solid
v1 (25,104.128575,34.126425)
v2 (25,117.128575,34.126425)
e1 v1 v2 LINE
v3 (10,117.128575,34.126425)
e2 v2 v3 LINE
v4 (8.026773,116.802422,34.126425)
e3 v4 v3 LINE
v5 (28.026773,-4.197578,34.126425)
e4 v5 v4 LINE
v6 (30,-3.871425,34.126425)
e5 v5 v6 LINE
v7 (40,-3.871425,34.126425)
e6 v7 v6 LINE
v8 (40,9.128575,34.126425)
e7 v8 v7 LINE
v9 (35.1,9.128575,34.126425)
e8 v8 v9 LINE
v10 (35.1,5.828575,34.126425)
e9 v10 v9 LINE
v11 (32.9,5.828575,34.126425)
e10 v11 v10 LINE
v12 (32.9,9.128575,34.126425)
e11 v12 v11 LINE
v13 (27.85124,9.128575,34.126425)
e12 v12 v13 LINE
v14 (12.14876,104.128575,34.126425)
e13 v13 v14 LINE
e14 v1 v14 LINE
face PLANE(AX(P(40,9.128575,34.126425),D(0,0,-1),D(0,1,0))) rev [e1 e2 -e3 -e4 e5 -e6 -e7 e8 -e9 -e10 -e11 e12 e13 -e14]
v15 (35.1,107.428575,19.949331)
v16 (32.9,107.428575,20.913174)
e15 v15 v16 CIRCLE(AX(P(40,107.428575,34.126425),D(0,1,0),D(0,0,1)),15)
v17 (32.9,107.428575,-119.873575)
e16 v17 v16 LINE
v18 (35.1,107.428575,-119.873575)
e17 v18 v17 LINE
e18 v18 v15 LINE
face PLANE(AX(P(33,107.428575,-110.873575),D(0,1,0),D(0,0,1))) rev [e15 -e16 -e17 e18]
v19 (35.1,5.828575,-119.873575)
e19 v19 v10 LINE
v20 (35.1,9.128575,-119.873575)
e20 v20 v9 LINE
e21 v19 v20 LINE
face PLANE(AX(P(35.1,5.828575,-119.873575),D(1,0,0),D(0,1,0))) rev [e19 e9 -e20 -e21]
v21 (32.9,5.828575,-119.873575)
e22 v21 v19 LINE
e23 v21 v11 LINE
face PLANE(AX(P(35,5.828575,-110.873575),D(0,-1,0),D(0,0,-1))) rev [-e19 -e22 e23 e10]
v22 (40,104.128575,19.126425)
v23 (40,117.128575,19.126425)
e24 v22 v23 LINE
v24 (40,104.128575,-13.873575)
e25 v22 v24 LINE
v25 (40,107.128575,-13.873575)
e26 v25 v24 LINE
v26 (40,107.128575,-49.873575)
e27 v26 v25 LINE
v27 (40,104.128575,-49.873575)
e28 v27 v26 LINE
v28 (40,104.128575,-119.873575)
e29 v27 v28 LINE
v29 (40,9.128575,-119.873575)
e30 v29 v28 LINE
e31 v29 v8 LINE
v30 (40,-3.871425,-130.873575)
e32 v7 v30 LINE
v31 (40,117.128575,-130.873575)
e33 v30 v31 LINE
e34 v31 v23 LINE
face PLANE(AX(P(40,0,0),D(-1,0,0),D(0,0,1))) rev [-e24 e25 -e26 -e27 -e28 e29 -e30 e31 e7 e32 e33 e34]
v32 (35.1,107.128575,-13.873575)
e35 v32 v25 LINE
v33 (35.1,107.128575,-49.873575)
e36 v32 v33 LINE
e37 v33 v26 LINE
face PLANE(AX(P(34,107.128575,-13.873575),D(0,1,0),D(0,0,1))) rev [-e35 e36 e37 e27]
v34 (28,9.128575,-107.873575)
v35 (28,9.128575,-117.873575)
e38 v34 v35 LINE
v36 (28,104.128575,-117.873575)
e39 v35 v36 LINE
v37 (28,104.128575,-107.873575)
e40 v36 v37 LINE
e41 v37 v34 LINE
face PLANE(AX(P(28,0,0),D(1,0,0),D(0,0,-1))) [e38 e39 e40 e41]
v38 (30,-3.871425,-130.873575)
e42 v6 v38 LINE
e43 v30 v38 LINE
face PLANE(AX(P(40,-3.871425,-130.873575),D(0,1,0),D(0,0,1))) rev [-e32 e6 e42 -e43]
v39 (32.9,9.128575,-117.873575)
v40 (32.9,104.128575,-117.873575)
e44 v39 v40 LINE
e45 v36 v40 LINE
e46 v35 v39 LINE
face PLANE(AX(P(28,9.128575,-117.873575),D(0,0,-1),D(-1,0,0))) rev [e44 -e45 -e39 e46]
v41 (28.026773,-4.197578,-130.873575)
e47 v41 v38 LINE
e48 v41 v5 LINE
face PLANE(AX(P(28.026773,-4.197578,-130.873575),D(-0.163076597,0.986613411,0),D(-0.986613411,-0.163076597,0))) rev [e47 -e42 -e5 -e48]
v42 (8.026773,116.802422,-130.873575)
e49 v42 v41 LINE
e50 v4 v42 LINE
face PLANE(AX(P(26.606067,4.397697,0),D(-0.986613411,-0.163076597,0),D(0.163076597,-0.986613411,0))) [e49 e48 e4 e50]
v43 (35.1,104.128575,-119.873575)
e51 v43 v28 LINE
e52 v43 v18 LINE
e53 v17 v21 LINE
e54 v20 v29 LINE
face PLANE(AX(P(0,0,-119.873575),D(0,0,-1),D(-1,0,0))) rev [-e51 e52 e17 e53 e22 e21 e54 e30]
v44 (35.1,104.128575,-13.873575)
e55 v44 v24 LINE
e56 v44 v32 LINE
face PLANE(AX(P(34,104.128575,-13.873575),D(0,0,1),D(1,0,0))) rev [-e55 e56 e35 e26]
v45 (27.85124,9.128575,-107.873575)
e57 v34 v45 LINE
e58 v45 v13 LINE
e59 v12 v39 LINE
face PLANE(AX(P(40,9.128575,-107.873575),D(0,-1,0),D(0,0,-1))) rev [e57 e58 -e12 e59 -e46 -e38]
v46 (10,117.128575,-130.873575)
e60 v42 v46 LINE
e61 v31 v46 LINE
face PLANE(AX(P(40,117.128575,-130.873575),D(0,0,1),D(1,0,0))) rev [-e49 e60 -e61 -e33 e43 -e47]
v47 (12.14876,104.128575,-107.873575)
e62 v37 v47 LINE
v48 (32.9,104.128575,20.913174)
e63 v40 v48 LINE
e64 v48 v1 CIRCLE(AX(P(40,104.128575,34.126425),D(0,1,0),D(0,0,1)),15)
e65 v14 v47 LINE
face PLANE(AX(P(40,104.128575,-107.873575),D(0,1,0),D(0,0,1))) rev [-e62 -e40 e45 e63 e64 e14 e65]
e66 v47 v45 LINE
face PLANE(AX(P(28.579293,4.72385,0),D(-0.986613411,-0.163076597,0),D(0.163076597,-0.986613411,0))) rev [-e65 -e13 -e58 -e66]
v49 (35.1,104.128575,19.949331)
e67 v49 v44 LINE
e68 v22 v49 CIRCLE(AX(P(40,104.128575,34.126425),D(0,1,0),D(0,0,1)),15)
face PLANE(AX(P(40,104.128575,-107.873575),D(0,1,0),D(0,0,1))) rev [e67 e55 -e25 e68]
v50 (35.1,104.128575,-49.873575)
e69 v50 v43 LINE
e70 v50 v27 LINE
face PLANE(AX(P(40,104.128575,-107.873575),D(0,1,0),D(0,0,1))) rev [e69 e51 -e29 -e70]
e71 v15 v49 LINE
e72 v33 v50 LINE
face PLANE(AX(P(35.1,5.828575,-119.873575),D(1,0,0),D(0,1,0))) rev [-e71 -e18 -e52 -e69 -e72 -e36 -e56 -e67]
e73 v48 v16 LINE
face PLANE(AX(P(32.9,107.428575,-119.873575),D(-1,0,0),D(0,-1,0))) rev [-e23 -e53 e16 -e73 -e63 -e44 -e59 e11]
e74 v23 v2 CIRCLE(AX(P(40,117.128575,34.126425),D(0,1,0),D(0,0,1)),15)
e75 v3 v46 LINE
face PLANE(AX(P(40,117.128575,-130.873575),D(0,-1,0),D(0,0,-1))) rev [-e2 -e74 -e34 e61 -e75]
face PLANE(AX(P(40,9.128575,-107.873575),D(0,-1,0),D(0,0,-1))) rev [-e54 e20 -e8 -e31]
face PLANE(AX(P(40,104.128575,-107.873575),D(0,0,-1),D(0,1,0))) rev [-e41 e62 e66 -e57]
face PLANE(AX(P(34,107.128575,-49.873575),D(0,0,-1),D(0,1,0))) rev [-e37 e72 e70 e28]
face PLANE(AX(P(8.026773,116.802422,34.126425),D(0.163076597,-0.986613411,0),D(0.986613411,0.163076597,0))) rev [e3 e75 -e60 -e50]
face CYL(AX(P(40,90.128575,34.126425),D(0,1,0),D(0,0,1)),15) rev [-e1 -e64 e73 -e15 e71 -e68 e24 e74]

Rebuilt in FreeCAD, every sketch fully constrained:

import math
import FreeCAD as App
import Part
import Sketcher

V = App.Vector
Q = App.Units.Quantity


def add_polygon(sketch, points):
    """Adds a closed chain of lines whose ends are joined by coincident constraints."""
    first, n = sketch.GeometryCount, len(points)
    for a, b in zip(points, points[1:] + points[:1]):
        sketch.addGeometry(Part.LineSegment(App.Vector(*a, 0), App.Vector(*b, 0)), False)
    for i in range(n):
        sketch.addConstraint(Sketcher.Constraint("Coincident", first + i, 2, first + (i + 1) % n, 1))

doc = App.newDocument("Part")
body = doc.addObject("PartDesign::Body", "Body")

sketch1 = body.newObject("Sketcher::SketchObject", "Sketch")
sketch1.AttachmentSupport = (doc.getObject("YZ_Plane"), [""])
sketch1.MapMode = "FlatFace"
add_polygon(sketch1, [(9.128575, 34.126425), (-3.871425, 34.126425), (-3.871425, -130.873575), (117.128575, -130.873575), (117.128575, 34.126425), (104.128575, 34.126425), (104.128575, -107.873575), (9.128575, -107.873575)])
sketch1.addConstraint([
    Sketcher.Constraint("Horizontal", 0),
    Sketcher.Constraint("Vertical", 1),
    Sketcher.Constraint("Horizontal", 2),
    Sketcher.Constraint("Vertical", 3),
    Sketcher.Constraint("Horizontal", 4),
    Sketcher.Constraint("Vertical", 5),
    Sketcher.Constraint("Horizontal", 6),
    Sketcher.Constraint("Vertical", 7),
    Sketcher.Constraint("Horizontal", 0, 2, 3, 2),
    Sketcher.Constraint("Equal", 0, 4),
    Sketcher.Constraint("DistanceX", 0, 2, 0, 1, Q("13 mm")),
    Sketcher.Constraint("DistanceX", 2, 1, 2, 2, Q("121 mm")),
    Sketcher.Constraint("DistanceY", 1, 2, 1, 1, Q("165 mm")),
    Sketcher.Constraint("DistanceY", 5, 2, 5, 1, Q("142 mm")),
    Sketcher.Constraint("DistanceX", 0, 2, -1, 1, Q("3.871425 mm")),
    Sketcher.Constraint("DistanceY", -1, 1, 0, 2, Q("34.126425 mm")),
])
pad1 = body.newObject("PartDesign::Pad", "Pad")
pad1.Profile = sketch1
pad1.Length = 40

sketch2 = body.newObject("Sketcher::SketchObject", "Sketch001")
sketch2.AttachmentSupport = (doc.getObject("XZ_Plane"), [""])
sketch2.MapMode = "FlatFace"
sketch2.AttachmentOffset = App.Placement(V(0, 0, -104.128575), App.Rotation())
add_polygon(sketch2, [(33, 34.126425), (33, -107.873575), (35, -107.873575), (35, 34.126425)])
sketch2.addConstraint([
    Sketcher.Constraint("Vertical", 0),
    Sketcher.Constraint("Horizontal", 1),
    Sketcher.Constraint("Vertical", 2),
    Sketcher.Constraint("Horizontal", 3),
    Sketcher.Constraint("DistanceX", 1, 1, 1, 2, Q("2 mm")),
    Sketcher.Constraint("DistanceY", 0, 2, 0, 1, Q("142 mm")),
    Sketcher.Constraint("DistanceX", -1, 1, 0, 2, Q("33 mm")),
    Sketcher.Constraint("DistanceY", 0, 2, -1, 1, Q("107.873575 mm")),
])
pocket1 = body.newObject("PartDesign::Pocket", "Pocket")
pocket1.Profile = sketch2
pocket1.Length = 3

sketch3 = body.newObject("Sketcher::SketchObject", "Sketch002")
sketch3.AttachmentSupport = (doc.getObject("XY_Plane"), [""])
sketch3.MapMode = "FlatFace"
sketch3.AttachmentOffset = App.Placement(V(0, 0, -107.873575), App.Rotation())
add_polygon(sketch3, [(33, 107.128575), (33, 9.128575), (35, 9.128575), (35, 107.128575)])
sketch3.addConstraint([
    Sketcher.Constraint("Vertical", 0),
    Sketcher.Constraint("Horizontal", 1),
    Sketcher.Constraint("Vertical", 2),
    Sketcher.Constraint("Horizontal", 3),
    Sketcher.Constraint("DistanceX", 1, 1, 1, 2, Q("2 mm")),
    Sketcher.Constraint("DistanceY", 0, 2, 0, 1, Q("98 mm")),
    Sketcher.Constraint("DistanceX", -1, 1, 0, 2, Q("33 mm")),
    Sketcher.Constraint("DistanceY", -1, 1, 0, 2, Q("9.128575 mm")),
])
pocket2 = body.newObject("PartDesign::Pocket", "Pocket001")
pocket2.Profile = sketch3
pocket2.Length = 3

sketch4 = body.newObject("Sketcher::SketchObject", "Sketch003")
sketch4.AttachmentSupport = (doc.getObject("XZ_Plane"), [""])
sketch4.MapMode = "FlatFace"
sketch4.AttachmentOffset = App.Placement(V(0, 0, -9.128575), App.Rotation())
add_polygon(sketch4, [(33, -110.873575), (33, 34.126425), (35, 34.126425), (35, -110.873575)])
sketch4.addConstraint([
    Sketcher.Constraint("Vertical", 0),
    Sketcher.Constraint("Horizontal", 1),
    Sketcher.Constraint("Vertical", 2),
    Sketcher.Constraint("Horizontal", 3),
    Sketcher.Constraint("DistanceX", 1, 1, 1, 2, Q("2 mm")),
    Sketcher.Constraint("DistanceY", 0, 1, 0, 2, Q("145 mm")),
    Sketcher.Constraint("DistanceX", -1, 1, 0, 2, Q("33 mm")),
    Sketcher.Constraint("DistanceY", -1, 1, 0, 2, Q("34.126425 mm")),
])
pocket3 = body.newObject("PartDesign::Pocket", "Pocket002")
pocket3.Profile = sketch4
pocket3.Length = 3
pocket3.Reversed = True

sketch5 = body.newObject("Sketcher::SketchObject", "Sketch004")
sketch5.AttachmentSupport = (doc.getObject("XY_Plane"), [""])
sketch5.MapMode = "FlatFace"
sketch5.AttachmentOffset = App.Placement(V(0, 0, -130.873575), App.Rotation())
add_polygon(sketch5, [(0, -3.871425), (0, 117.128575), (10, 117.128575), (30, -3.871425)])
sketch5.addConstraint([
    Sketcher.Constraint("Vertical", 0),
    Sketcher.Constraint("Horizontal", 1),
    Sketcher.Constraint("Horizontal", 3),
    Sketcher.Constraint("PointOnObject", 0, 2, -2),
    Sketcher.Constraint("DistanceX", 1, 1, 1, 2, Q("10 mm")),
    Sketcher.Constraint("DistanceX", 3, 2, 3, 1, Q("30 mm")),
    Sketcher.Constraint("DistanceY", 0, 1, 0, 2, Q("121 mm")),
    Sketcher.Constraint("DistanceY", -1, 1, 0, 2, Q("117.128575 mm")),
])
pocket4 = body.newObject("PartDesign::Pocket", "Pocket003")
pocket4.Profile = sketch5
pocket4.Length = 228
pocket4.Reversed = True

sketch6 = body.newObject("Sketcher::SketchObject", "Sketch005")
sketch6.Placement = App.Placement(V(28.579293, 4.72385, 0), App.Rotation(V(0, 0, 1), V(-0.163076597, 0.986613411, 0), V(-0.986613411, -0.163076597, 0), "ZXY"))
add_polygon(sketch6, [(-130.873575, 113.929857), (-130.873575, -8.711898), (34.126425, -8.711898), (34.126425, 113.929857)])
sketch6.addConstraint([
    Sketcher.Constraint("Vertical", 0),
    Sketcher.Constraint("Horizontal", 1),
    Sketcher.Constraint("Vertical", 2),
    Sketcher.Constraint("Horizontal", 3),
    Sketcher.Constraint("DistanceX", 1, 1, 1, 2, Q("165 mm")),
    Sketcher.Constraint("DistanceY", 0, 2, 0, 1, Q("122.641755 mm")),
    Sketcher.Constraint("DistanceX", 0, 2, -1, 1, Q("130.873575 mm")),
    Sketcher.Constraint("DistanceY", 0, 2, -1, 1, Q("8.711898 mm")),
])
pad2 = body.newObject("PartDesign::Pad", "Pad001")
pad2.Profile = sketch6
pad2.Length = 2

sketch7 = body.newObject("Sketcher::SketchObject", "Sketch006")
sketch7.AttachmentSupport = (doc.getObject("XY_Plane"), [""])
sketch7.MapMode = "FlatFace"
sketch7.AttachmentOffset = App.Placement(V(0, 0, 34.126425), App.Rotation())
add_polygon(sketch7, [(33, 107.428575), (33, 107.128575), (35, 107.128575), (35, 107.428575)])
sketch7.addConstraint([
    Sketcher.Constraint("Vertical", 0),
    Sketcher.Constraint("Horizontal", 1),
    Sketcher.Constraint("Vertical", 2),
    Sketcher.Constraint("Horizontal", 3),
    Sketcher.Constraint("DistanceX", 1, 1, 1, 2, Q("2 mm")),
    Sketcher.Constraint("DistanceY", 0, 2, 0, 1, Q("0.3 mm")),
    Sketcher.Constraint("DistanceX", -1, 1, 0, 2, Q("33 mm")),
    Sketcher.Constraint("DistanceY", -1, 1, 0, 2, Q("107.128575 mm")),
])
pocket5 = body.newObject("PartDesign::Pocket", "Pocket004")
pocket5.Profile = sketch7
pocket5.Length = 145

sketch8 = body.newObject("Sketcher::SketchObject", "Sketch007")
sketch8.AttachmentSupport = (doc.getObject("XY_Plane"), [""])
sketch8.MapMode = "FlatFace"
sketch8.AttachmentOffset = App.Placement(V(0, 0, 34.126425), App.Rotation())
add_polygon(sketch8, [(33, 6.128575), (33, 5.828575), (35, 5.828575), (35, 6.128575)])
sketch8.addConstraint([
    Sketcher.Constraint("Vertical", 0),
    Sketcher.Constraint("Horizontal", 1),
    Sketcher.Constraint("Vertical", 2),
    Sketcher.Constraint("Horizontal", 3),
    Sketcher.Constraint("DistanceX", 1, 1, 1, 2, Q("2 mm")),
    Sketcher.Constraint("DistanceY", 0, 2, 0, 1, Q("0.3 mm")),
    Sketcher.Constraint("DistanceX", -1, 1, 0, 2, Q("33 mm")),
    Sketcher.Constraint("DistanceY", -1, 1, 0, 2, Q("5.828575 mm")),
])
pocket6 = body.newObject("PartDesign::Pocket", "Pocket005")
pocket6.Profile = sketch8
pocket6.Length = 145

sketch9 = body.newObject("Sketcher::SketchObject", "Sketch008")
sketch9.AttachmentSupport = (doc.getObject("XY_Plane"), [""])
sketch9.MapMode = "FlatFace"
sketch9.AttachmentOffset = App.Placement(V(0, 0, 34.126425), App.Rotation())
add_polygon(sketch9, [(33, 107.428575), (33, 5.828575), (35, 5.828575), (35, 107.428575)])
sketch9.addConstraint([
    Sketcher.Constraint("Vertical", 0),
    Sketcher.Constraint("Horizontal", 1),
    Sketcher.Constraint("Vertical", 2),
    Sketcher.Constraint("Horizontal", 3),
    Sketcher.Constraint("DistanceX", 1, 1, 1, 2, Q("2 mm")),
    Sketcher.Constraint("DistanceY", 0, 2, 0, 1, Q("101.6 mm")),
    Sketcher.Constraint("DistanceX", -1, 1, 0, 2, Q("33 mm")),
    Sketcher.Constraint("DistanceY", -1, 1, 0, 2, Q("5.828575 mm")),
])
pocket7 = body.newObject("PartDesign::Pocket", "Pocket006")
pocket7.Profile = sketch9
pocket7.Length = 154

sketch10 = body.newObject("Sketcher::SketchObject", "Sketch009")
sketch10.AttachmentSupport = (doc.getObject("YZ_Plane"), [""])
sketch10.MapMode = "FlatFace"
sketch10.AttachmentOffset = App.Placement(V(0, 0, 40), App.Rotation())
add_polygon(sketch10, [(104.128575, -107.873575), (9.128575, -107.873575), (9.128575, -117.873575), (104.128575, -117.873575)])
sketch10.addConstraint([
    Sketcher.Constraint("Horizontal", 0),
    Sketcher.Constraint("Vertical", 1),
    Sketcher.Constraint("Horizontal", 2),
    Sketcher.Constraint("Vertical", 3),
    Sketcher.Constraint("DistanceX", 0, 2, 0, 1, Q("95 mm")),
    Sketcher.Constraint("DistanceY", 1, 2, 1, 1, Q("10 mm")),
    Sketcher.Constraint("DistanceX", -1, 1, 0, 2, Q("9.128575 mm")),
    Sketcher.Constraint("DistanceY", 0, 2, -1, 1, Q("107.873575 mm")),
])
pocket8 = body.newObject("PartDesign::Pocket", "Pocket007")
pocket8.Profile = sketch10
pocket8.Length = 12

sketch11 = body.newObject("Sketcher::SketchObject", "Sketch010")
sketch11.AttachmentSupport = (doc.getObject("XZ_Plane"), [""])
sketch11.MapMode = "FlatFace"
sketch11.AttachmentOffset = App.Placement(V(0, 0, -104.128575), App.Rotation())
add_polygon(sketch11, [(28, 34.126425), (28, 29.126425), (33, 29.126425), (33, 34.126425)])
sketch11.addConstraint([
    Sketcher.Constraint("Vertical", 0),
    Sketcher.Constraint("Horizontal", 1),
    Sketcher.Constraint("Vertical", 2),
    Sketcher.Constraint("Horizontal", 3),
    Sketcher.Constraint("Equal", 3, 0),
    Sketcher.Constraint("DistanceX", 1, 1, 1, 2, Q("5 mm")),
    Sketcher.Constraint("DistanceX", -1, 1, 0, 2, Q("28 mm")),
    Sketcher.Constraint("DistanceY", -1, 1, 0, 2, Q("29.126425 mm")),
])
pocket9 = body.newObject("PartDesign::Pocket", "Pocket008")
pocket9.Profile = sketch11
pocket9.Length = 56

sketch12 = body.newObject("Sketcher::SketchObject", "Sketch011")
sketch12.AttachmentSupport = (doc.getObject("YZ_Plane"), [""])
sketch12.MapMode = "FlatFace"
sketch12.AttachmentOffset = App.Placement(V(0, 0, 40), App.Rotation())
add_polygon(sketch12, [(107.128575, -13.873575), (104.128575, -13.873575), (104.128575, -49.873575), (107.128575, -49.873575)])
sketch12.addConstraint([
    Sketcher.Constraint("Horizontal", 0),
    Sketcher.Constraint("Vertical", 1),
    Sketcher.Constraint("Horizontal", 2),
    Sketcher.Constraint("Vertical", 3),
    Sketcher.Constraint("DistanceX", 0, 2, 0, 1, Q("3 mm")),
    Sketcher.Constraint("DistanceY", 1, 2, 1, 1, Q("36 mm")),
    Sketcher.Constraint("DistanceX", -1, 1, 0, 2, Q("104.128575 mm")),
    Sketcher.Constraint("DistanceY", 0, 2, -1, 1, Q("13.873575 mm")),
])
pocket10 = body.newObject("PartDesign::Pocket", "Pocket009")
pocket10.Profile = sketch12
pocket10.Length = 6

sketch13 = body.newObject("Sketcher::SketchObject", "Sketch012")
sketch13.AttachmentSupport = (doc.getObject("XZ_Plane"), [""])
sketch13.MapMode = "FlatFace"
sketch13.AttachmentOffset = App.Placement(V(0, 0, -117.128575), App.Rotation())
sketch13.addGeometry([
    Part.LineSegment(V(33, 34.126425, 0), V(40, 34.126425, 0)),
    Part.LineSegment(V(40, 34.126425, 0), V(40, 19.126425, 0)),
    Part.ArcOfCircle(Part.Circle(V(40, 34.126425, 0), V(0, 0, 1), 15), math.radians(180), math.radians(270)),
    Part.LineSegment(V(25, 34.126425, 0), V(28, 34.126425, 0)),
    Part.LineSegment(V(28, 34.126425, 0), V(28, 29.126425, 0)),
    Part.LineSegment(V(28, 29.126425, 0), V(33, 29.126425, 0)),
    Part.LineSegment(V(33, 29.126425, 0), V(33, 34.126425, 0)),
], False)
sketch13.addConstraint([
    Sketcher.Constraint("Coincident", 0, 2, 1, 1),
    Sketcher.Constraint("Coincident", 1, 2, 2, 2),
    Sketcher.Constraint("Coincident", 2, 1, 3, 1),
    Sketcher.Constraint("Coincident", 3, 2, 4, 1),
    Sketcher.Constraint("Coincident", 4, 2, 5, 1),
    Sketcher.Constraint("Coincident", 5, 2, 6, 1),
    Sketcher.Constraint("Coincident", 6, 2, 0, 1),
    Sketcher.Constraint("Horizontal", 0),
    Sketcher.Constraint("Vertical", 1),
    Sketcher.Constraint("Horizontal", 3),
    Sketcher.Constraint("Vertical", 4),
    Sketcher.Constraint("Horizontal", 5),
    Sketcher.Constraint("Vertical", 6),
    Sketcher.Constraint("Coincident", 0, 2, 2, 3),
    Sketcher.Constraint("Horizontal", 0, 2, 2, 1),
    Sketcher.Constraint("Equal", 5, 4),
    Sketcher.Constraint("Radius", 2, Q("15 mm")),
    Sketcher.Constraint("DistanceX", 0, 1, 0, 2, Q("7 mm")),
    Sketcher.Constraint("DistanceX", 3, 1, 3, 2, Q("3 mm")),
    Sketcher.Constraint("DistanceX", -1, 1, 2, 3, Q("40 mm")),
    Sketcher.Constraint("DistanceY", -1, 1, 2, 3, Q("34.126425 mm")),
])
pocket11 = body.newObject("PartDesign::Pocket", "Pocket010")
pocket11.Profile = sketch13
pocket11.Length = 27
pocket11.Reversed = True

sketch14 = body.newObject("Sketcher::SketchObject", "Sketch013")
sketch14.AttachmentSupport = (doc.getObject("YZ_Plane"), [""])
sketch14.MapMode = "FlatFace"
sketch14.AttachmentOffset = App.Placement(V(0, 0, 40), App.Rotation())
add_polygon(sketch14, [(104.128575, -117.873575), (9.128575, -117.873575), (9.128575, -119.873575), (104.128575, -119.873575)])
sketch14.addConstraint([
    Sketcher.Constraint("Horizontal", 0),
    Sketcher.Constraint("Vertical", 1),
    Sketcher.Constraint("Horizontal", 2),
    Sketcher.Constraint("Vertical", 3),
    Sketcher.Constraint("DistanceX", 0, 2, 0, 1, Q("95 mm")),
    Sketcher.Constraint("DistanceY", 1, 2, 1, 1, Q("2 mm")),
    Sketcher.Constraint("DistanceX", -1, 1, 0, 2, Q("9.128575 mm")),
    Sketcher.Constraint("DistanceY", 0, 2, -1, 1, Q("117.873575 mm")),
])
pocket12 = body.newObject("PartDesign::Pocket", "Pocket011")
pocket12.Profile = sketch14
pocket12.Length = 5

sketch15 = body.newObject("Sketcher::SketchObject", "Sketch014")
sketch15.AttachmentSupport = (doc.getObject("XY_Plane"), [""])
sketch15.MapMode = "FlatFace"
sketch15.AttachmentOffset = App.Placement(V(0, 0, 34.126425), App.Rotation())
add_polygon(sketch15, [(35.1, 5.828575), (35.1, 107.428575), (32.9, 107.428575), (32.9, 5.828575)])
sketch15.addConstraint([
    Sketcher.Constraint("Vertical", 0),
    Sketcher.Constraint("Horizontal", 1),
    Sketcher.Constraint("Vertical", 2),
    Sketcher.Constraint("Horizontal", 3),
    Sketcher.Constraint("DistanceX", 1, 2, 1, 1, Q("2.2 mm")),
    Sketcher.Constraint("DistanceY", 0, 1, 0, 2, Q("101.6 mm")),
    Sketcher.Constraint("DistanceX", -1, 1, 0, 2, Q("35.1 mm")),
    Sketcher.Constraint("DistanceY", -1, 1, 0, 2, Q("107.428575 mm")),
])
pocket13 = body.newObject("PartDesign::Pocket", "Pocket012")
pocket13.Profile = sketch15
pocket13.Length = 154

doc.recompute()
